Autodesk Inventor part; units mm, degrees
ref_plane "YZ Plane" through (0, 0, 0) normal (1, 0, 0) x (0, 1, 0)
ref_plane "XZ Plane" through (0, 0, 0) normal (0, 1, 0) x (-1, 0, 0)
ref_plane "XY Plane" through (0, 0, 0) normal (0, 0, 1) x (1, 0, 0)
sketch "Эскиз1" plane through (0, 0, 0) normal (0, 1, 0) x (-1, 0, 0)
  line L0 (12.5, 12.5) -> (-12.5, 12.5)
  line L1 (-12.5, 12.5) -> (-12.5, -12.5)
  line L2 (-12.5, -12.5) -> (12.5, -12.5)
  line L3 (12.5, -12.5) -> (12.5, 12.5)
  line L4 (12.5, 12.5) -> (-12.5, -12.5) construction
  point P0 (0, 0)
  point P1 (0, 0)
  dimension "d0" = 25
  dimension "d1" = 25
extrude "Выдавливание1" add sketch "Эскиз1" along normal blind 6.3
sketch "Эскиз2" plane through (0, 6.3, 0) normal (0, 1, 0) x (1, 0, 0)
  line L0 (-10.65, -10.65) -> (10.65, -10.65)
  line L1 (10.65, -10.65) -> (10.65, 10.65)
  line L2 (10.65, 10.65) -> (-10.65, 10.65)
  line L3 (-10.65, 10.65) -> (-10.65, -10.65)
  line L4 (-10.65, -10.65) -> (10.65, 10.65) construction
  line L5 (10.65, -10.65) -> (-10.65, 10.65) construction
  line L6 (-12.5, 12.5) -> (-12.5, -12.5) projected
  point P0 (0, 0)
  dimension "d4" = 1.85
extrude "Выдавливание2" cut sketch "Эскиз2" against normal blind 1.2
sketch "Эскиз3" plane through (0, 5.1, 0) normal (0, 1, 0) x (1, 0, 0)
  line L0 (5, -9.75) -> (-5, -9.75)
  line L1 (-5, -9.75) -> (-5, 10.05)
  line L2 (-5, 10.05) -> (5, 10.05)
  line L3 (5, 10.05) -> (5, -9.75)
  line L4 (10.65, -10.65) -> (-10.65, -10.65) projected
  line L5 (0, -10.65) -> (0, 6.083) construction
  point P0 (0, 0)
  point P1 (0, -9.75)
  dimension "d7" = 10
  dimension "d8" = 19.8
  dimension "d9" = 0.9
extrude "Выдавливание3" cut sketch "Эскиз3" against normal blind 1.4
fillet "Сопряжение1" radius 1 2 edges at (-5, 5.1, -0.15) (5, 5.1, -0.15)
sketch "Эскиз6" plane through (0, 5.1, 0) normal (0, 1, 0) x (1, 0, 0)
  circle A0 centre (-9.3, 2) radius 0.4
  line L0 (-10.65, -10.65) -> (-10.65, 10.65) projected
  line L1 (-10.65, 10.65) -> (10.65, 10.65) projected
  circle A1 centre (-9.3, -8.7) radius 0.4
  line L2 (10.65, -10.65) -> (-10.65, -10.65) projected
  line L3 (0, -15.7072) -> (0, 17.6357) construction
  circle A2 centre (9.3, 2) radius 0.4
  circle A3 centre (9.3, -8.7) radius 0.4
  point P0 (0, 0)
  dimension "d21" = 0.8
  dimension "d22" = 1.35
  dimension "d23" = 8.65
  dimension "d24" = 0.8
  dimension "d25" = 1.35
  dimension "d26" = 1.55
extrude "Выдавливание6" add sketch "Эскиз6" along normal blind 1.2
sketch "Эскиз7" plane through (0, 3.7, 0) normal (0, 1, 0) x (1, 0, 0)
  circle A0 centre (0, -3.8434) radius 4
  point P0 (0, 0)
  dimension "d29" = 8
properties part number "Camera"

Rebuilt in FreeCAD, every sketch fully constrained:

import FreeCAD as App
import Part
import Sketcher

V = App.Vector
Q = App.Units.Quantity


def edges_at(feature, points):
    """Names of the edges that pass closest to the given points."""
    edges = feature.Shape.Edges
    near = lambda p: min(range(len(edges)), key=lambda i: edges[i].distToShape(Part.Vertex(*p))[0])
    return sorted({f"Edge{near(p) + 1}" for p in points})

doc = App.newDocument("Part")
body = doc.addObject("PartDesign::Body", "Body")

sketch1 = body.newObject("Sketcher::SketchObject", "Sketch")
sketch1.AttachmentSupport = (doc.getObject("XZ_Plane"), [""])
sketch1.MapMode = "FlatFace"
sketch1.addGeometry([
    Part.LineSegment(V(-12.5, -12.5, 0), V(-12.5, 12.5, 0)),
    Part.LineSegment(V(-12.5, 12.5, 0), V(12.5, 12.5, 0)),
    Part.LineSegment(V(12.5, 12.5, 0), V(12.5, -12.5, 0)),
    Part.LineSegment(V(12.5, -12.5, 0), V(-12.5, -12.5, 0)),
], False)
sketch1.addConstraint([
    Sketcher.Constraint("Coincident", 0, 2, 1, 1),
    Sketcher.Constraint("Coincident", 1, 2, 2, 1),
    Sketcher.Constraint("Coincident", 2, 2, 3, 1),
    Sketcher.Constraint("Coincident", 3, 2, 0, 1),
    Sketcher.Constraint("Vertical", 0),
    Sketcher.Constraint("Horizontal", 1),
    Sketcher.Constraint("Vertical", 2),
    Sketcher.Constraint("Horizontal", 3),
    Sketcher.Constraint("Symmetric", 0, 2, 2, 2, -1, 1),
    Sketcher.Constraint("Equal", 3, 0),
    Sketcher.Constraint("DistanceX", 1, 1, 1, 2, Q("25 mm")),
])
pad1 = body.newObject("PartDesign::Pad", "Pad")
pad1.Profile = sketch1
pad1.Length = 6.3
pad1.Reversed = True

sketch2 = body.newObject("Sketcher::SketchObject", "Sketch001")
sketch2.AttachmentSupport = (doc.getObject("XZ_Plane"), [""])
sketch2.MapMode = "FlatFace"
sketch2.AttachmentOffset = App.Placement(V(0, 0, -6.3), App.Rotation())
sketch2.addGeometry([
    Part.LineSegment(V(-10.65, -10.65, 0), V(-10.65, 10.65, 0)),
    Part.LineSegment(V(-10.65, 10.65, 0), V(10.65, 10.65, 0)),
    Part.LineSegment(V(10.65, 10.65, 0), V(10.65, -10.65, 0)),
    Part.LineSegment(V(10.65, -10.65, 0), V(-10.65, -10.65, 0)),
], False)
sketch2.addConstraint([
    Sketcher.Constraint("Coincident", 0, 2, 1, 1),
    Sketcher.Constraint("Coincident", 1, 2, 2, 1),
    Sketcher.Constraint("Coincident", 2, 2, 3, 1),
    Sketcher.Constraint("Coincident", 3, 2, 0, 1),
    Sketcher.Constraint("Vertical", 0),
    Sketcher.Constraint("Horizontal", 1),
    Sketcher.Constraint("Vertical", 2),
    Sketcher.Constraint("Horizontal", 3),
    Sketcher.Constraint("Symmetric", 0, 2, 2, 2, -1, 1),
    Sketcher.Constraint("Equal", 3, 0),
    Sketcher.Constraint("DistanceX", 1, 1, 1, 2, Q("21.3 mm")),
])
pocket1 = body.newObject("PartDesign::Pocket", "Pocket")
pocket1.Profile = sketch2
pocket1.Length = 1.2
pocket1.Reversed = True

sketch3 = body.newObject("Sketcher::SketchObject", "Sketch002")
sketch3.AttachmentSupport = (doc.getObject("XZ_Plane"), [""])
sketch3.MapMode = "FlatFace"
sketch3.AttachmentOffset = App.Placement(V(0, 0, -5.1), App.Rotation())
sketch3.addGeometry([
    Part.LineSegment(V(-5, 9.75, 0), V(5, 9.75, 0)),
    Part.LineSegment(V(5, 9.75, 0), V(5, -10.05, 0)),
    Part.LineSegment(V(5, -10.05, 0), V(-5, -10.05, 0)),
    Part.LineSegment(V(-5, -10.05, 0), V(-5, 9.75, 0)),
], False)
sketch3.addConstraint([
    Sketcher.Constraint("Coincident", 0, 2, 1, 1),
    Sketcher.Constraint("Coincident", 1, 2, 2, 1),
    Sketcher.Constraint("Coincident", 2, 2, 3, 1),
    Sketcher.Constraint("Coincident", 3, 2, 0, 1),
    Sketcher.Constraint("Horizontal", 0),
    Sketcher.Constraint("Vertical", 1),
    Sketcher.Constraint("Horizontal", 2),
    Sketcher.Constraint("Vertical", 3),
    Sketcher.Constraint("DistanceX", 0, 1, 0, 2, Q("10 mm")),
    Sketcher.Constraint("DistanceY", 1, 2, 1, 1, Q("19.8 mm")),
    Sketcher.Constraint("DistanceX", -1, 1, 0, 2, Q("5 mm")),
    Sketcher.Constraint("DistanceY", -1, 1, 0, 2, Q("9.75 mm")),
])
pocket2 = body.newObject("PartDesign::Pocket", "Pocket001")
pocket2.Profile = sketch3
pocket2.Length = 1.4
pocket2.Reversed = True
doc.recompute()

fillet = body.newObject("PartDesign::Fillet", "Fillet")
fillet.Base = (pocket2, edges_at(pocket2, [(-5, 5.1, -0.15), (5, 5.1, -0.15)]))
fillet.Radius = 1

sketch4 = body.newObject("Sketcher::SketchObject", "Sketch003")
sketch4.AttachmentSupport = (doc.getObject("XZ_Plane"), [""])
sketch4.MapMode = "FlatFace"
sketch4.AttachmentOffset = App.Placement(V(0, 0, -5.1), App.Rotation())
sketch4.addGeometry([
    Part.Circle(V(-9.3, -2, 0), V(0, 0, 1), 0.4),
    Part.Circle(V(-9.3, 8.7, 0), V(0, 0, 1), 0.4),
    Part.Circle(V(9.3, -2, 0), V(0, 0, 1), 0.4),
    Part.Circle(V(9.3, 8.7, 0), V(0, 0, 1), 0.4),
], False)
sketch4.addConstraint([
    Sketcher.Constraint("Equal", 0, 1),
    Sketcher.Constraint("Equal", 1, 2),
    Sketcher.Constraint("Equal", 2, 3),
    Sketcher.Constraint("Symmetric", 0, 3, 2, 3, -2),
    Sketcher.Constraint("Symmetric", 1, 3, 3, 3, -2),
    Sketcher.Constraint("Vertical", 0, 3, 1, 3),
    Sketcher.Constraint("Diameter", 0, Q("0.8 mm")),
    Sketcher.Constraint("DistanceY", 0, 3, -1, 1, Q("2 mm")),
    Sketcher.Constraint("DistanceX", 0, 3, -1, 1, Q("9.3 mm")),
    Sketcher.Constraint("DistanceY", -1, 1, 1, 3, Q("8.7 mm")),
])
pad2 = body.newObject("PartDesign::Pad", "Pad001")
pad2.Profile = sketch4
pad2.Length = 1.2
pad2.Reversed = True

doc.recompute()
